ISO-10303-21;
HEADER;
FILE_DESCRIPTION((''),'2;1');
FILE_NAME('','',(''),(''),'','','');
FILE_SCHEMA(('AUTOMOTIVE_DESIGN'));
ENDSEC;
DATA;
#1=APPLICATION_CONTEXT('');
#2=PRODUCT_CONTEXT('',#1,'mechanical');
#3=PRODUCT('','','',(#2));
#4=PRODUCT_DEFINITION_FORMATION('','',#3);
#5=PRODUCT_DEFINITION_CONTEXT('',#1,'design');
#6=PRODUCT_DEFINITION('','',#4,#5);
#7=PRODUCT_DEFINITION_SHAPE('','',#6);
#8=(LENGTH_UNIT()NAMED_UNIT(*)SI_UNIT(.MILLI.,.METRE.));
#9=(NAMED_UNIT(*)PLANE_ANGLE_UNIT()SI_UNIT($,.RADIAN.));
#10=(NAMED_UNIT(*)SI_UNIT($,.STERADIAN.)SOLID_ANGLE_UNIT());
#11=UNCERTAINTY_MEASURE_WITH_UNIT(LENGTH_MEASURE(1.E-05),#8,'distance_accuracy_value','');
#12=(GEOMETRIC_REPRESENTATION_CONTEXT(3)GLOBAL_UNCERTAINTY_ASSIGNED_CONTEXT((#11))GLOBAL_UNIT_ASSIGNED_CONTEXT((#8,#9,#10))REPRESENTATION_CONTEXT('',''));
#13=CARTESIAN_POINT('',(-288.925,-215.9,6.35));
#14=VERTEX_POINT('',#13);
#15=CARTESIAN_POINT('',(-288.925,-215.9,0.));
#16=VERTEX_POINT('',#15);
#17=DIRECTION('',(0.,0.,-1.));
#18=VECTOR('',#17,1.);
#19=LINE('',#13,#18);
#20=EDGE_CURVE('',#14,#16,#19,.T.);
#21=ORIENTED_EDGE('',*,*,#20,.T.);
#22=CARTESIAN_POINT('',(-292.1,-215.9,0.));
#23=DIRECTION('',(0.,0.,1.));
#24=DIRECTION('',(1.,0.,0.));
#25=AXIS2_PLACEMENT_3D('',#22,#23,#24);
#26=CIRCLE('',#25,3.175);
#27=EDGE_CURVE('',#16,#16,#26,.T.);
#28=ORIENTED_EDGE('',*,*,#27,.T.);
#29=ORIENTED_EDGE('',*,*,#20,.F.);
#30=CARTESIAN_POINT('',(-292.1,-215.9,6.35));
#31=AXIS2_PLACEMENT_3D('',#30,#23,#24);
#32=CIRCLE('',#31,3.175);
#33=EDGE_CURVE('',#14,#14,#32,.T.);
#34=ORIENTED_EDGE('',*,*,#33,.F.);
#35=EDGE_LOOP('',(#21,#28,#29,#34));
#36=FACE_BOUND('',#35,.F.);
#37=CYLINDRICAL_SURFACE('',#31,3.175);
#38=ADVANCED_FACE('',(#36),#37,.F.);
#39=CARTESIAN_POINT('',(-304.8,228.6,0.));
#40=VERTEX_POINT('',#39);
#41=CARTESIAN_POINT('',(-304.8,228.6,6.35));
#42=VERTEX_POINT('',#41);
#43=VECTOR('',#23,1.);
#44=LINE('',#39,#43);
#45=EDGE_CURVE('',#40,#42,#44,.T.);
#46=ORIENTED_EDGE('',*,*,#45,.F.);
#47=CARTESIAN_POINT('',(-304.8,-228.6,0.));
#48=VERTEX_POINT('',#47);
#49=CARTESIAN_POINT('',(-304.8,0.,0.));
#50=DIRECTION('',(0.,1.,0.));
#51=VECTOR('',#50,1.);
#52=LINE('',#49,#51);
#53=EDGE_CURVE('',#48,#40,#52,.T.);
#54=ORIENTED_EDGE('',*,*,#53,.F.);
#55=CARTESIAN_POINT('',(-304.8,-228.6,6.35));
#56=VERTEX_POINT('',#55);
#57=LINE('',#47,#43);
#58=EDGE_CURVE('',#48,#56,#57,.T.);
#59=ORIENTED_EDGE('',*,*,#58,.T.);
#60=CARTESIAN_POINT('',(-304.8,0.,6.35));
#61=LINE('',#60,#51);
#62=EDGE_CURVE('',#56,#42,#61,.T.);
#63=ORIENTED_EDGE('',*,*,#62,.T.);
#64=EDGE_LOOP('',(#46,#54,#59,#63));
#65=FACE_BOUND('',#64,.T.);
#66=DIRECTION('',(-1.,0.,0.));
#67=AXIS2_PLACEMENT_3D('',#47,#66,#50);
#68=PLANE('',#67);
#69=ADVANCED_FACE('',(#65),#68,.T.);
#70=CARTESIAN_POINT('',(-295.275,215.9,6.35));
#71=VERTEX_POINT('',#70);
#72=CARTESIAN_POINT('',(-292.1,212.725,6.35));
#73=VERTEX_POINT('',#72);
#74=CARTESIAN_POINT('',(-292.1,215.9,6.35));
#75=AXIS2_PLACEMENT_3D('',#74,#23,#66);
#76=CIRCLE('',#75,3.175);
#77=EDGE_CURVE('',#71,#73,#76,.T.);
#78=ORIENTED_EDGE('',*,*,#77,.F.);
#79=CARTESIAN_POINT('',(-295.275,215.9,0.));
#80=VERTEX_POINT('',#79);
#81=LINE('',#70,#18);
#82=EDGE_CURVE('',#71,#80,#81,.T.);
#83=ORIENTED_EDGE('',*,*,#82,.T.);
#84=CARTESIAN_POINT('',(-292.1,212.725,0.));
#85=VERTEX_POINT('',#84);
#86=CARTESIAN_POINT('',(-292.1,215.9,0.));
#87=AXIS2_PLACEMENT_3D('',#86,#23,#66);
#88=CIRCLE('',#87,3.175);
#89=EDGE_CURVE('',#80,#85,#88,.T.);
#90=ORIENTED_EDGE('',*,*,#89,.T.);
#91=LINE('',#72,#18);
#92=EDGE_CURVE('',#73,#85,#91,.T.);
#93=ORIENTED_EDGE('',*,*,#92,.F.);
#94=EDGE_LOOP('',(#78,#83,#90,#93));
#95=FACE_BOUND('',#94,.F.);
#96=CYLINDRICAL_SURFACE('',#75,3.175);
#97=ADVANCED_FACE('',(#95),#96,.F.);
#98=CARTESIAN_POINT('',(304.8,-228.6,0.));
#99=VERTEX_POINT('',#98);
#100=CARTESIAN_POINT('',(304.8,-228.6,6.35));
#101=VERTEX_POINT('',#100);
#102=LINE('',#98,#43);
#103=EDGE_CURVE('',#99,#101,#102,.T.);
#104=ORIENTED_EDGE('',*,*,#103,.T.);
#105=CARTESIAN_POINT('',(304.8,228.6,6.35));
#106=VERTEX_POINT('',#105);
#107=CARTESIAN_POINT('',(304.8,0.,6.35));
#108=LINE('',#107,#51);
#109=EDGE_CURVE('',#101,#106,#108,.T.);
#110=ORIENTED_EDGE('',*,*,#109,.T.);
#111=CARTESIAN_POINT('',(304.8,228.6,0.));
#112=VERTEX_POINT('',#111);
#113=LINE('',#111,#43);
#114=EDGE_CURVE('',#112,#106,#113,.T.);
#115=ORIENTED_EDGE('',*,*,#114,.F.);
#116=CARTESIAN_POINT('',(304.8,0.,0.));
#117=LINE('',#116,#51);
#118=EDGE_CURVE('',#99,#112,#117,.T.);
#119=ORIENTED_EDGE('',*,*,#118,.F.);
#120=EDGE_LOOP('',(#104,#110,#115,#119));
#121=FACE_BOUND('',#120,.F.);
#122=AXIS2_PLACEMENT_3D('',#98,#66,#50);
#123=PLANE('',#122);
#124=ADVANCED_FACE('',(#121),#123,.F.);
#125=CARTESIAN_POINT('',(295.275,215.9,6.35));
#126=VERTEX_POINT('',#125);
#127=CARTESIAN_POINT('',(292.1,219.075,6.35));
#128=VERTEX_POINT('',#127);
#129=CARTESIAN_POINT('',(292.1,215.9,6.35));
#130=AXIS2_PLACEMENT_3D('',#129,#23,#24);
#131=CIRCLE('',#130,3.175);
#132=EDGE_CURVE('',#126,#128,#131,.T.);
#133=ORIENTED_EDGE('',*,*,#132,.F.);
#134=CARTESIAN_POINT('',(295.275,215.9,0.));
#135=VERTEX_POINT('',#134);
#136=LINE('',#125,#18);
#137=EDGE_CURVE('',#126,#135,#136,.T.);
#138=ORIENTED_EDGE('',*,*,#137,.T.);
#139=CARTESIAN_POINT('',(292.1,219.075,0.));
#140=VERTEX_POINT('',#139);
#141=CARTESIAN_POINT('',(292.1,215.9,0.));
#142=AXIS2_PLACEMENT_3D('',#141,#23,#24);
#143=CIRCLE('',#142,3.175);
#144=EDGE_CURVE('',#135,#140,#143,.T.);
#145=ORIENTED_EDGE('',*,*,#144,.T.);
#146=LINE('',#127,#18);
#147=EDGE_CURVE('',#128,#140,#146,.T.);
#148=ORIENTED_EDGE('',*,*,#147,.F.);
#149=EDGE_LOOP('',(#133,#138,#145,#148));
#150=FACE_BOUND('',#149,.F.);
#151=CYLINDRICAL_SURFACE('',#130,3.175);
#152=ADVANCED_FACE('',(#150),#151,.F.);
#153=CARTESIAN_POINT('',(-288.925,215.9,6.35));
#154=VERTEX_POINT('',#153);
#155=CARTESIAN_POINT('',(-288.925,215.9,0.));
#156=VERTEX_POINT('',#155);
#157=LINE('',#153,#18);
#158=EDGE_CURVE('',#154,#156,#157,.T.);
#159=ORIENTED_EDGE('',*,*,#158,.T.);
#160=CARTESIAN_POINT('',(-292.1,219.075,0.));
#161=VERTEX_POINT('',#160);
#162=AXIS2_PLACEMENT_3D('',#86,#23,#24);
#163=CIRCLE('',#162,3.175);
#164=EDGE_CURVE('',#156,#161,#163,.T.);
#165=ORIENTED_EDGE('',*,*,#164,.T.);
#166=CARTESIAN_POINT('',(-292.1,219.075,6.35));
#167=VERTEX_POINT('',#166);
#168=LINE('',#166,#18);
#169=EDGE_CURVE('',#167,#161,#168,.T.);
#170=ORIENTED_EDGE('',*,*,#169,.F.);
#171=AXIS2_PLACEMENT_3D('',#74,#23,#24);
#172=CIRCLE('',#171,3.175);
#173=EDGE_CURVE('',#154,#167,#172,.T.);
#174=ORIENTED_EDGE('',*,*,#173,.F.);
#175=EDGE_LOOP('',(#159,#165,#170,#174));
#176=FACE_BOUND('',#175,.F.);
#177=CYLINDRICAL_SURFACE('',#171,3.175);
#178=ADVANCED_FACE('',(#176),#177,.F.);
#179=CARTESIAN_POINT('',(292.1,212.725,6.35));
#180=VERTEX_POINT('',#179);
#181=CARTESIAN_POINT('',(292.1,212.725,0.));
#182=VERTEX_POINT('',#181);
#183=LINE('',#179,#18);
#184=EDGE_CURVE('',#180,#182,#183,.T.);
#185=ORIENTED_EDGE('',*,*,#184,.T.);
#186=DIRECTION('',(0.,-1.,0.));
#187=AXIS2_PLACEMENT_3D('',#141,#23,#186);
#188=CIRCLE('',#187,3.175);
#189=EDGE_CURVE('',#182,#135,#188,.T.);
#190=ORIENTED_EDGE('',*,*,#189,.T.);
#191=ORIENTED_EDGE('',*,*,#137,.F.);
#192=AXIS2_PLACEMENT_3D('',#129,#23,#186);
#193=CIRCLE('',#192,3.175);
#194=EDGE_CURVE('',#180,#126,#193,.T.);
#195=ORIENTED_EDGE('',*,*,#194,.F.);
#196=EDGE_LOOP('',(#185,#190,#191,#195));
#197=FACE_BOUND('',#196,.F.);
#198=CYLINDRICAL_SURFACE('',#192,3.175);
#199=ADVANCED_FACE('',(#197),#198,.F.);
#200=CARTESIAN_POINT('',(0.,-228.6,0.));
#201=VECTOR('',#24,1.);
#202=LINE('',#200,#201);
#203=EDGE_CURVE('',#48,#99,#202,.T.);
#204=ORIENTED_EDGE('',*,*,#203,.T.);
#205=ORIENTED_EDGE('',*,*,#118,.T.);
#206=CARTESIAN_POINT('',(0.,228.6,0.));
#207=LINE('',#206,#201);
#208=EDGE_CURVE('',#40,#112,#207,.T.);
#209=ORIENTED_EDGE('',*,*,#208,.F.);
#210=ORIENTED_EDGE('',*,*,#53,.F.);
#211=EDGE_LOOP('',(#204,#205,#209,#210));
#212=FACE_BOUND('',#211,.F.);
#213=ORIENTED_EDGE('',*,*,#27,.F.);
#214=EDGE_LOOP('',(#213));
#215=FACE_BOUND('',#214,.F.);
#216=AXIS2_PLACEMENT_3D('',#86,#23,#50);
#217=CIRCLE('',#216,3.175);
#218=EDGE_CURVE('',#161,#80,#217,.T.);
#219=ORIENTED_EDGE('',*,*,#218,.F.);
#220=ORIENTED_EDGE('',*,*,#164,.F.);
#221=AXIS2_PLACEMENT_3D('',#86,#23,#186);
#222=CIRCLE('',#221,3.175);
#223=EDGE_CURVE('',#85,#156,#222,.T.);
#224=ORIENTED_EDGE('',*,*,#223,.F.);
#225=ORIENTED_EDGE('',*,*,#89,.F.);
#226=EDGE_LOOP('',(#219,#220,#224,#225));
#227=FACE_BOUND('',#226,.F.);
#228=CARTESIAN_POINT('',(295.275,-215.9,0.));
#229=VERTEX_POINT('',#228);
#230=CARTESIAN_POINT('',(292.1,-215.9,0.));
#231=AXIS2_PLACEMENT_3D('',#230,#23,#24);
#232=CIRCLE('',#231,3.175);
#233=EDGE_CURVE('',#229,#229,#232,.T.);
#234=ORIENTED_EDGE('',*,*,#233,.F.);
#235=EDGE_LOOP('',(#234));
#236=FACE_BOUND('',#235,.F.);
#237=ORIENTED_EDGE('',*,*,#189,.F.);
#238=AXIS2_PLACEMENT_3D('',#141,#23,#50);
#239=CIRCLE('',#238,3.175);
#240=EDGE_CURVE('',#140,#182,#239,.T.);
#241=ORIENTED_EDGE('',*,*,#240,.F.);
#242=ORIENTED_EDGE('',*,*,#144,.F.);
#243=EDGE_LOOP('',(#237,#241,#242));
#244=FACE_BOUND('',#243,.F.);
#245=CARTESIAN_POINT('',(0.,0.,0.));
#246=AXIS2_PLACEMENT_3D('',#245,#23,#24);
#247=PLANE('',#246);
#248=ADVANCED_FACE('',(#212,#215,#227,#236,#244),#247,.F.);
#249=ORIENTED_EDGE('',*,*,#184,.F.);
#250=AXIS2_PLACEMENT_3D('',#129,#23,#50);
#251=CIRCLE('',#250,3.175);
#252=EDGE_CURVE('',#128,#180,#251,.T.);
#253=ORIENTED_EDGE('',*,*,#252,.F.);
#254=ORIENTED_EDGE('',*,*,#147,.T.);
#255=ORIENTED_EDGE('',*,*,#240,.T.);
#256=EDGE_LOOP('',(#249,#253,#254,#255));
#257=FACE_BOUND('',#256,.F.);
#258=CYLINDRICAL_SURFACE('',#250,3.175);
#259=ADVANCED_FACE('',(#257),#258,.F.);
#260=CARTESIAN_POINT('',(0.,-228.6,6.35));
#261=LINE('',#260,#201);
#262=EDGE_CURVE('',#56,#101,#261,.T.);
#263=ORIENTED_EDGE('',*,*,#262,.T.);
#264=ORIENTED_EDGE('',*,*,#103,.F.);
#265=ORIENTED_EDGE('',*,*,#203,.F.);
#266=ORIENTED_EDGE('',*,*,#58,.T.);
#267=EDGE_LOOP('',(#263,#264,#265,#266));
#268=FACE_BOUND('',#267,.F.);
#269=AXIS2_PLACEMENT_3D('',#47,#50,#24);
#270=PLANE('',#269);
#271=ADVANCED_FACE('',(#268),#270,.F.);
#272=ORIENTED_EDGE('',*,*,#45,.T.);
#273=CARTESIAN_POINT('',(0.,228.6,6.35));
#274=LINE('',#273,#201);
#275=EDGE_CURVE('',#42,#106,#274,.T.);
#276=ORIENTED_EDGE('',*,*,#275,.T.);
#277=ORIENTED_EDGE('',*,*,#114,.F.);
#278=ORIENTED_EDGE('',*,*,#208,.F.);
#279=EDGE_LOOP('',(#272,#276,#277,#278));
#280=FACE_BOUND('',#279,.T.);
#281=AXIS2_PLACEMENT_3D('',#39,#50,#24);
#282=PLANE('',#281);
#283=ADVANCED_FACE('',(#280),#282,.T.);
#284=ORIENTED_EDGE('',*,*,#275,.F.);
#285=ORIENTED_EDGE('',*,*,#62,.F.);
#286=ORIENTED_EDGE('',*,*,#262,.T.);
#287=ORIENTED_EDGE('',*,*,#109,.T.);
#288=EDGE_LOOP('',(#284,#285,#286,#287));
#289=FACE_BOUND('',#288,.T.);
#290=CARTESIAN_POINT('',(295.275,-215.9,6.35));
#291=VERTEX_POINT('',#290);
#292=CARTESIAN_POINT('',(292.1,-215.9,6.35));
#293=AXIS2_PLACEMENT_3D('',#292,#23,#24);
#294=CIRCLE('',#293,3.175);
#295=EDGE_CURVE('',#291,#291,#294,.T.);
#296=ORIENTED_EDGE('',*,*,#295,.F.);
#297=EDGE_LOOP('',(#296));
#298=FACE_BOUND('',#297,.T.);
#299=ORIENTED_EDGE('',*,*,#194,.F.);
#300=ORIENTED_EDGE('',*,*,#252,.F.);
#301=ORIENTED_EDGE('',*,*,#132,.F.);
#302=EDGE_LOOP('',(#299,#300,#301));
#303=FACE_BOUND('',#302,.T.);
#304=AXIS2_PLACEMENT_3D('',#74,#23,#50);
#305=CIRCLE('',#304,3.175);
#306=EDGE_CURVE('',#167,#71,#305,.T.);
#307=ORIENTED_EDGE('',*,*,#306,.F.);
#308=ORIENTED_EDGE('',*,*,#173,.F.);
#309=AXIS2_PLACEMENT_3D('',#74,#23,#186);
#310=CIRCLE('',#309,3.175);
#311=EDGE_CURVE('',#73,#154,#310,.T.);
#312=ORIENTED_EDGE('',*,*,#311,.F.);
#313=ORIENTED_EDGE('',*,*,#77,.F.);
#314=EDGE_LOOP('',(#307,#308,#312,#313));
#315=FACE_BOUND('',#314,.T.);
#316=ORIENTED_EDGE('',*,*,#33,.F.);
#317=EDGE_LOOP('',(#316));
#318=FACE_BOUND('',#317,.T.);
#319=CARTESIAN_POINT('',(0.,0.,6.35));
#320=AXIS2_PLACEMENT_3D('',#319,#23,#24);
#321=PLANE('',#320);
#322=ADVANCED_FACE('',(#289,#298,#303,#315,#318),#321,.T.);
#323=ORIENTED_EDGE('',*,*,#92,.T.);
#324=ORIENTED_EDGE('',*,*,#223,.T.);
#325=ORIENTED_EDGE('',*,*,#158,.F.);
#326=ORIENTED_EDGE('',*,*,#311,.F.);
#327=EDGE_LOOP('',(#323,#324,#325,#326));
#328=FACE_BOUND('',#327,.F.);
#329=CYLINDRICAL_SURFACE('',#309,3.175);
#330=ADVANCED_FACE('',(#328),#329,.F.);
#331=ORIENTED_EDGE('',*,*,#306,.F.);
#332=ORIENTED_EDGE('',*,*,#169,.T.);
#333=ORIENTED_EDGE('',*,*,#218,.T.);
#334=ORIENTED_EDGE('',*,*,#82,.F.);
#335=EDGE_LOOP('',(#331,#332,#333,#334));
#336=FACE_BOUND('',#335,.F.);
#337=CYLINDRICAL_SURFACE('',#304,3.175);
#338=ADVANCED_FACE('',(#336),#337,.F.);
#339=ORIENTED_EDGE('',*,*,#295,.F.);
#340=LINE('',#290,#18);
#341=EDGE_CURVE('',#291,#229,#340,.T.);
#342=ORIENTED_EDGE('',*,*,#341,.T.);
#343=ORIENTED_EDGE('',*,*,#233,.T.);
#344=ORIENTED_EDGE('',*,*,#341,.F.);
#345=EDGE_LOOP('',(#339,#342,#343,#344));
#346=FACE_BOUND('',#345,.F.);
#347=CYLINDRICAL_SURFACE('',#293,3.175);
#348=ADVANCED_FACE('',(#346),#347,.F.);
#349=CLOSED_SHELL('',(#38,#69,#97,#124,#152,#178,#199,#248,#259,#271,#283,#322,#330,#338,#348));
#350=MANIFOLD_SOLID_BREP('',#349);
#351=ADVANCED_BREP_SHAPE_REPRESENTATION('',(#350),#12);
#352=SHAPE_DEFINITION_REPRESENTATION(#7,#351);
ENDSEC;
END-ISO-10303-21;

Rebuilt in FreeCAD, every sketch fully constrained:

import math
import FreeCAD as App
import Part
import Sketcher
Q = App.Units.Quantity


def add_polygon(sketch, points):
    """Adds a closed chain of lines whose ends are joined by coincident constraints."""
    first, n = sketch.GeometryCount, len(points)
    for a, b in zip(points, points[1:] + points[:1]):
        sketch.addGeometry(Part.LineSegment(App.Vector(*a, 0), App.Vector(*b, 0)), False)
    for i in range(n):
        sketch.addConstraint(Sketcher.Constraint("Coincident", first + i, 2, first + (i + 1) % n, 1))

doc = App.newDocument("Part")
body = doc.addObject("PartDesign::Body", "Body")

# Sketch on XY plane
sketch1 = body.newObject("Sketcher::SketchObject", "Sketch")
sketch1.AttachmentSupport = (doc.getObject("XY_Plane"), [""])
sketch1.MapMode = "FlatFace"
add_polygon(sketch1, [(-304.8, 228.6), (-304.8, -228.6), (304.8, -228.6), (304.8, 228.6)])  # lines 0-3
sketch1.addConstraint([
    Sketcher.Constraint("Vertical", 0),
    Sketcher.Constraint("Horizontal", 1),
    Sketcher.Constraint("Vertical", 2),
    Sketcher.Constraint("Horizontal", 3),
    Sketcher.Constraint("Symmetric", 0, 2, 2, 2, -1, 1),
    Sketcher.Constraint("DistanceX", 1, 1, 1, 2, Q("24 in")),
    Sketcher.Constraint("DistanceY", 0, 2, 0, 1, Q("18 in")),
])
pad1 = body.newObject("PartDesign::Pad", "Pad")
pad1.Profile = sketch1
pad1.Length = Q("0.25 in")

# Sketch on XY plane
sketch2 = body.newObject("Sketcher::SketchObject", "Sketch001")
sketch2.AttachmentSupport = (doc.getObject("XY_Plane"), [""])
sketch2.MapMode = "FlatFace"
sketch2.AttachmentOffset = App.Placement(App.Vector(0, 0, 0.25 * 25.4), App.Rotation())
sketch2.addGeometry([
    Part.ArcOfCircle(Part.Circle(App.Vector(-292.1, 215.9, 0), App.Vector(0, 0, 1), 3.175), math.radians(0), math.radians(90)),  # 0
    Part.ArcOfCircle(Part.Circle(App.Vector(-292.1, 215.9, 0), App.Vector(0, 0, 1), 3.175), math.radians(90), math.radians(180)),  # 1
    Part.ArcOfCircle(Part.Circle(App.Vector(-292.1, 215.9, 0), App.Vector(0, 0, 1), 3.175), math.radians(180), math.radians(270)),  # 2
    Part.ArcOfCircle(Part.Circle(App.Vector(-292.1, 215.9, 0), App.Vector(0, 0, 1), 3.175), math.radians(-90), math.radians(0)),  # 3
    Part.Circle(App.Vector(-292.1, -215.9, 0), App.Vector(0, 0, 1), 3.175),  # 4
    Part.Circle(App.Vector(292.1, -215.9, 0), App.Vector(0, 0, 1), 3.175),  # 5
    Part.ArcOfCircle(Part.Circle(App.Vector(292.1, 215.9, 0), App.Vector(0, 0, 1), 3.175), math.radians(-90), math.radians(0)),  # 6
    Part.ArcOfCircle(Part.Circle(App.Vector(292.1, 215.9, 0), App.Vector(0, 0, 1), 3.175), math.radians(0), math.radians(90)),  # 7
    Part.ArcOfCircle(Part.Circle(App.Vector(292.1, 215.9, 0), App.Vector(0, 0, 1), 3.175), math.radians(90), math.radians(270)),  # 8
], False)
sketch2.addConstraint([
    Sketcher.Constraint("Tangent", 0, 2, 1, 1),
    Sketcher.Constraint("Tangent", 1, 2, 2, 1),
    Sketcher.Constraint("Tangent", 2, 2, 3, 1),
    Sketcher.Constraint("Tangent", 3, 2, 0, 1),
    Sketcher.Constraint("Tangent", 6, 2, 7, 1),
    Sketcher.Constraint("Tangent", 7, 2, 8, 1),
    Sketcher.Constraint("Tangent", 8, 2, 6, 1),
    Sketcher.Constraint("Equal", 0, 1),
    Sketcher.Constraint("Equal", 3, 4),
    Sketcher.Constraint("Equal", 4, 5),
    Sketcher.Constraint("Equal", 5, 6),
    Sketcher.Constraint("Symmetric", 0, 3, 5, 3, -1, 1),
    Sketcher.Constraint("Symmetric", 4, 3, 6, 3, -1, 1),
    Sketcher.Constraint("Symmetric", 4, 3, 5, 3, -2),
    Sketcher.Constraint("Horizontal", 8, 3, 1, 2),
    Sketcher.Constraint("Horizontal", 1, 2, 3, 2),
    Sketcher.Constraint("Horizontal", 3, 2, 6, 2),
    Sketcher.Constraint("Vertical", 4, 3, 0, 2),
    Sketcher.Constraint("Vertical", 0, 2, 2, 2),
    Sketcher.Constraint("Vertical", 8, 3, 7, 2),
    Sketcher.Constraint("Vertical", 7, 2, 8, 2),
    Sketcher.Constraint("Diameter", 4, Q("0.25 in")),
    Sketcher.Constraint("DistanceY", 4, 3, 0, 3, Q("17 in")),
    Sketcher.Constraint("DistanceX", 4, 3, 5, 3, Q("23 in")),
])
pocket1 = body.newObject("PartDesign::Pocket", "Pocket")
pocket1.Profile = sketch2
pocket1.Length = Q("0.25 in")

doc.recompute()
